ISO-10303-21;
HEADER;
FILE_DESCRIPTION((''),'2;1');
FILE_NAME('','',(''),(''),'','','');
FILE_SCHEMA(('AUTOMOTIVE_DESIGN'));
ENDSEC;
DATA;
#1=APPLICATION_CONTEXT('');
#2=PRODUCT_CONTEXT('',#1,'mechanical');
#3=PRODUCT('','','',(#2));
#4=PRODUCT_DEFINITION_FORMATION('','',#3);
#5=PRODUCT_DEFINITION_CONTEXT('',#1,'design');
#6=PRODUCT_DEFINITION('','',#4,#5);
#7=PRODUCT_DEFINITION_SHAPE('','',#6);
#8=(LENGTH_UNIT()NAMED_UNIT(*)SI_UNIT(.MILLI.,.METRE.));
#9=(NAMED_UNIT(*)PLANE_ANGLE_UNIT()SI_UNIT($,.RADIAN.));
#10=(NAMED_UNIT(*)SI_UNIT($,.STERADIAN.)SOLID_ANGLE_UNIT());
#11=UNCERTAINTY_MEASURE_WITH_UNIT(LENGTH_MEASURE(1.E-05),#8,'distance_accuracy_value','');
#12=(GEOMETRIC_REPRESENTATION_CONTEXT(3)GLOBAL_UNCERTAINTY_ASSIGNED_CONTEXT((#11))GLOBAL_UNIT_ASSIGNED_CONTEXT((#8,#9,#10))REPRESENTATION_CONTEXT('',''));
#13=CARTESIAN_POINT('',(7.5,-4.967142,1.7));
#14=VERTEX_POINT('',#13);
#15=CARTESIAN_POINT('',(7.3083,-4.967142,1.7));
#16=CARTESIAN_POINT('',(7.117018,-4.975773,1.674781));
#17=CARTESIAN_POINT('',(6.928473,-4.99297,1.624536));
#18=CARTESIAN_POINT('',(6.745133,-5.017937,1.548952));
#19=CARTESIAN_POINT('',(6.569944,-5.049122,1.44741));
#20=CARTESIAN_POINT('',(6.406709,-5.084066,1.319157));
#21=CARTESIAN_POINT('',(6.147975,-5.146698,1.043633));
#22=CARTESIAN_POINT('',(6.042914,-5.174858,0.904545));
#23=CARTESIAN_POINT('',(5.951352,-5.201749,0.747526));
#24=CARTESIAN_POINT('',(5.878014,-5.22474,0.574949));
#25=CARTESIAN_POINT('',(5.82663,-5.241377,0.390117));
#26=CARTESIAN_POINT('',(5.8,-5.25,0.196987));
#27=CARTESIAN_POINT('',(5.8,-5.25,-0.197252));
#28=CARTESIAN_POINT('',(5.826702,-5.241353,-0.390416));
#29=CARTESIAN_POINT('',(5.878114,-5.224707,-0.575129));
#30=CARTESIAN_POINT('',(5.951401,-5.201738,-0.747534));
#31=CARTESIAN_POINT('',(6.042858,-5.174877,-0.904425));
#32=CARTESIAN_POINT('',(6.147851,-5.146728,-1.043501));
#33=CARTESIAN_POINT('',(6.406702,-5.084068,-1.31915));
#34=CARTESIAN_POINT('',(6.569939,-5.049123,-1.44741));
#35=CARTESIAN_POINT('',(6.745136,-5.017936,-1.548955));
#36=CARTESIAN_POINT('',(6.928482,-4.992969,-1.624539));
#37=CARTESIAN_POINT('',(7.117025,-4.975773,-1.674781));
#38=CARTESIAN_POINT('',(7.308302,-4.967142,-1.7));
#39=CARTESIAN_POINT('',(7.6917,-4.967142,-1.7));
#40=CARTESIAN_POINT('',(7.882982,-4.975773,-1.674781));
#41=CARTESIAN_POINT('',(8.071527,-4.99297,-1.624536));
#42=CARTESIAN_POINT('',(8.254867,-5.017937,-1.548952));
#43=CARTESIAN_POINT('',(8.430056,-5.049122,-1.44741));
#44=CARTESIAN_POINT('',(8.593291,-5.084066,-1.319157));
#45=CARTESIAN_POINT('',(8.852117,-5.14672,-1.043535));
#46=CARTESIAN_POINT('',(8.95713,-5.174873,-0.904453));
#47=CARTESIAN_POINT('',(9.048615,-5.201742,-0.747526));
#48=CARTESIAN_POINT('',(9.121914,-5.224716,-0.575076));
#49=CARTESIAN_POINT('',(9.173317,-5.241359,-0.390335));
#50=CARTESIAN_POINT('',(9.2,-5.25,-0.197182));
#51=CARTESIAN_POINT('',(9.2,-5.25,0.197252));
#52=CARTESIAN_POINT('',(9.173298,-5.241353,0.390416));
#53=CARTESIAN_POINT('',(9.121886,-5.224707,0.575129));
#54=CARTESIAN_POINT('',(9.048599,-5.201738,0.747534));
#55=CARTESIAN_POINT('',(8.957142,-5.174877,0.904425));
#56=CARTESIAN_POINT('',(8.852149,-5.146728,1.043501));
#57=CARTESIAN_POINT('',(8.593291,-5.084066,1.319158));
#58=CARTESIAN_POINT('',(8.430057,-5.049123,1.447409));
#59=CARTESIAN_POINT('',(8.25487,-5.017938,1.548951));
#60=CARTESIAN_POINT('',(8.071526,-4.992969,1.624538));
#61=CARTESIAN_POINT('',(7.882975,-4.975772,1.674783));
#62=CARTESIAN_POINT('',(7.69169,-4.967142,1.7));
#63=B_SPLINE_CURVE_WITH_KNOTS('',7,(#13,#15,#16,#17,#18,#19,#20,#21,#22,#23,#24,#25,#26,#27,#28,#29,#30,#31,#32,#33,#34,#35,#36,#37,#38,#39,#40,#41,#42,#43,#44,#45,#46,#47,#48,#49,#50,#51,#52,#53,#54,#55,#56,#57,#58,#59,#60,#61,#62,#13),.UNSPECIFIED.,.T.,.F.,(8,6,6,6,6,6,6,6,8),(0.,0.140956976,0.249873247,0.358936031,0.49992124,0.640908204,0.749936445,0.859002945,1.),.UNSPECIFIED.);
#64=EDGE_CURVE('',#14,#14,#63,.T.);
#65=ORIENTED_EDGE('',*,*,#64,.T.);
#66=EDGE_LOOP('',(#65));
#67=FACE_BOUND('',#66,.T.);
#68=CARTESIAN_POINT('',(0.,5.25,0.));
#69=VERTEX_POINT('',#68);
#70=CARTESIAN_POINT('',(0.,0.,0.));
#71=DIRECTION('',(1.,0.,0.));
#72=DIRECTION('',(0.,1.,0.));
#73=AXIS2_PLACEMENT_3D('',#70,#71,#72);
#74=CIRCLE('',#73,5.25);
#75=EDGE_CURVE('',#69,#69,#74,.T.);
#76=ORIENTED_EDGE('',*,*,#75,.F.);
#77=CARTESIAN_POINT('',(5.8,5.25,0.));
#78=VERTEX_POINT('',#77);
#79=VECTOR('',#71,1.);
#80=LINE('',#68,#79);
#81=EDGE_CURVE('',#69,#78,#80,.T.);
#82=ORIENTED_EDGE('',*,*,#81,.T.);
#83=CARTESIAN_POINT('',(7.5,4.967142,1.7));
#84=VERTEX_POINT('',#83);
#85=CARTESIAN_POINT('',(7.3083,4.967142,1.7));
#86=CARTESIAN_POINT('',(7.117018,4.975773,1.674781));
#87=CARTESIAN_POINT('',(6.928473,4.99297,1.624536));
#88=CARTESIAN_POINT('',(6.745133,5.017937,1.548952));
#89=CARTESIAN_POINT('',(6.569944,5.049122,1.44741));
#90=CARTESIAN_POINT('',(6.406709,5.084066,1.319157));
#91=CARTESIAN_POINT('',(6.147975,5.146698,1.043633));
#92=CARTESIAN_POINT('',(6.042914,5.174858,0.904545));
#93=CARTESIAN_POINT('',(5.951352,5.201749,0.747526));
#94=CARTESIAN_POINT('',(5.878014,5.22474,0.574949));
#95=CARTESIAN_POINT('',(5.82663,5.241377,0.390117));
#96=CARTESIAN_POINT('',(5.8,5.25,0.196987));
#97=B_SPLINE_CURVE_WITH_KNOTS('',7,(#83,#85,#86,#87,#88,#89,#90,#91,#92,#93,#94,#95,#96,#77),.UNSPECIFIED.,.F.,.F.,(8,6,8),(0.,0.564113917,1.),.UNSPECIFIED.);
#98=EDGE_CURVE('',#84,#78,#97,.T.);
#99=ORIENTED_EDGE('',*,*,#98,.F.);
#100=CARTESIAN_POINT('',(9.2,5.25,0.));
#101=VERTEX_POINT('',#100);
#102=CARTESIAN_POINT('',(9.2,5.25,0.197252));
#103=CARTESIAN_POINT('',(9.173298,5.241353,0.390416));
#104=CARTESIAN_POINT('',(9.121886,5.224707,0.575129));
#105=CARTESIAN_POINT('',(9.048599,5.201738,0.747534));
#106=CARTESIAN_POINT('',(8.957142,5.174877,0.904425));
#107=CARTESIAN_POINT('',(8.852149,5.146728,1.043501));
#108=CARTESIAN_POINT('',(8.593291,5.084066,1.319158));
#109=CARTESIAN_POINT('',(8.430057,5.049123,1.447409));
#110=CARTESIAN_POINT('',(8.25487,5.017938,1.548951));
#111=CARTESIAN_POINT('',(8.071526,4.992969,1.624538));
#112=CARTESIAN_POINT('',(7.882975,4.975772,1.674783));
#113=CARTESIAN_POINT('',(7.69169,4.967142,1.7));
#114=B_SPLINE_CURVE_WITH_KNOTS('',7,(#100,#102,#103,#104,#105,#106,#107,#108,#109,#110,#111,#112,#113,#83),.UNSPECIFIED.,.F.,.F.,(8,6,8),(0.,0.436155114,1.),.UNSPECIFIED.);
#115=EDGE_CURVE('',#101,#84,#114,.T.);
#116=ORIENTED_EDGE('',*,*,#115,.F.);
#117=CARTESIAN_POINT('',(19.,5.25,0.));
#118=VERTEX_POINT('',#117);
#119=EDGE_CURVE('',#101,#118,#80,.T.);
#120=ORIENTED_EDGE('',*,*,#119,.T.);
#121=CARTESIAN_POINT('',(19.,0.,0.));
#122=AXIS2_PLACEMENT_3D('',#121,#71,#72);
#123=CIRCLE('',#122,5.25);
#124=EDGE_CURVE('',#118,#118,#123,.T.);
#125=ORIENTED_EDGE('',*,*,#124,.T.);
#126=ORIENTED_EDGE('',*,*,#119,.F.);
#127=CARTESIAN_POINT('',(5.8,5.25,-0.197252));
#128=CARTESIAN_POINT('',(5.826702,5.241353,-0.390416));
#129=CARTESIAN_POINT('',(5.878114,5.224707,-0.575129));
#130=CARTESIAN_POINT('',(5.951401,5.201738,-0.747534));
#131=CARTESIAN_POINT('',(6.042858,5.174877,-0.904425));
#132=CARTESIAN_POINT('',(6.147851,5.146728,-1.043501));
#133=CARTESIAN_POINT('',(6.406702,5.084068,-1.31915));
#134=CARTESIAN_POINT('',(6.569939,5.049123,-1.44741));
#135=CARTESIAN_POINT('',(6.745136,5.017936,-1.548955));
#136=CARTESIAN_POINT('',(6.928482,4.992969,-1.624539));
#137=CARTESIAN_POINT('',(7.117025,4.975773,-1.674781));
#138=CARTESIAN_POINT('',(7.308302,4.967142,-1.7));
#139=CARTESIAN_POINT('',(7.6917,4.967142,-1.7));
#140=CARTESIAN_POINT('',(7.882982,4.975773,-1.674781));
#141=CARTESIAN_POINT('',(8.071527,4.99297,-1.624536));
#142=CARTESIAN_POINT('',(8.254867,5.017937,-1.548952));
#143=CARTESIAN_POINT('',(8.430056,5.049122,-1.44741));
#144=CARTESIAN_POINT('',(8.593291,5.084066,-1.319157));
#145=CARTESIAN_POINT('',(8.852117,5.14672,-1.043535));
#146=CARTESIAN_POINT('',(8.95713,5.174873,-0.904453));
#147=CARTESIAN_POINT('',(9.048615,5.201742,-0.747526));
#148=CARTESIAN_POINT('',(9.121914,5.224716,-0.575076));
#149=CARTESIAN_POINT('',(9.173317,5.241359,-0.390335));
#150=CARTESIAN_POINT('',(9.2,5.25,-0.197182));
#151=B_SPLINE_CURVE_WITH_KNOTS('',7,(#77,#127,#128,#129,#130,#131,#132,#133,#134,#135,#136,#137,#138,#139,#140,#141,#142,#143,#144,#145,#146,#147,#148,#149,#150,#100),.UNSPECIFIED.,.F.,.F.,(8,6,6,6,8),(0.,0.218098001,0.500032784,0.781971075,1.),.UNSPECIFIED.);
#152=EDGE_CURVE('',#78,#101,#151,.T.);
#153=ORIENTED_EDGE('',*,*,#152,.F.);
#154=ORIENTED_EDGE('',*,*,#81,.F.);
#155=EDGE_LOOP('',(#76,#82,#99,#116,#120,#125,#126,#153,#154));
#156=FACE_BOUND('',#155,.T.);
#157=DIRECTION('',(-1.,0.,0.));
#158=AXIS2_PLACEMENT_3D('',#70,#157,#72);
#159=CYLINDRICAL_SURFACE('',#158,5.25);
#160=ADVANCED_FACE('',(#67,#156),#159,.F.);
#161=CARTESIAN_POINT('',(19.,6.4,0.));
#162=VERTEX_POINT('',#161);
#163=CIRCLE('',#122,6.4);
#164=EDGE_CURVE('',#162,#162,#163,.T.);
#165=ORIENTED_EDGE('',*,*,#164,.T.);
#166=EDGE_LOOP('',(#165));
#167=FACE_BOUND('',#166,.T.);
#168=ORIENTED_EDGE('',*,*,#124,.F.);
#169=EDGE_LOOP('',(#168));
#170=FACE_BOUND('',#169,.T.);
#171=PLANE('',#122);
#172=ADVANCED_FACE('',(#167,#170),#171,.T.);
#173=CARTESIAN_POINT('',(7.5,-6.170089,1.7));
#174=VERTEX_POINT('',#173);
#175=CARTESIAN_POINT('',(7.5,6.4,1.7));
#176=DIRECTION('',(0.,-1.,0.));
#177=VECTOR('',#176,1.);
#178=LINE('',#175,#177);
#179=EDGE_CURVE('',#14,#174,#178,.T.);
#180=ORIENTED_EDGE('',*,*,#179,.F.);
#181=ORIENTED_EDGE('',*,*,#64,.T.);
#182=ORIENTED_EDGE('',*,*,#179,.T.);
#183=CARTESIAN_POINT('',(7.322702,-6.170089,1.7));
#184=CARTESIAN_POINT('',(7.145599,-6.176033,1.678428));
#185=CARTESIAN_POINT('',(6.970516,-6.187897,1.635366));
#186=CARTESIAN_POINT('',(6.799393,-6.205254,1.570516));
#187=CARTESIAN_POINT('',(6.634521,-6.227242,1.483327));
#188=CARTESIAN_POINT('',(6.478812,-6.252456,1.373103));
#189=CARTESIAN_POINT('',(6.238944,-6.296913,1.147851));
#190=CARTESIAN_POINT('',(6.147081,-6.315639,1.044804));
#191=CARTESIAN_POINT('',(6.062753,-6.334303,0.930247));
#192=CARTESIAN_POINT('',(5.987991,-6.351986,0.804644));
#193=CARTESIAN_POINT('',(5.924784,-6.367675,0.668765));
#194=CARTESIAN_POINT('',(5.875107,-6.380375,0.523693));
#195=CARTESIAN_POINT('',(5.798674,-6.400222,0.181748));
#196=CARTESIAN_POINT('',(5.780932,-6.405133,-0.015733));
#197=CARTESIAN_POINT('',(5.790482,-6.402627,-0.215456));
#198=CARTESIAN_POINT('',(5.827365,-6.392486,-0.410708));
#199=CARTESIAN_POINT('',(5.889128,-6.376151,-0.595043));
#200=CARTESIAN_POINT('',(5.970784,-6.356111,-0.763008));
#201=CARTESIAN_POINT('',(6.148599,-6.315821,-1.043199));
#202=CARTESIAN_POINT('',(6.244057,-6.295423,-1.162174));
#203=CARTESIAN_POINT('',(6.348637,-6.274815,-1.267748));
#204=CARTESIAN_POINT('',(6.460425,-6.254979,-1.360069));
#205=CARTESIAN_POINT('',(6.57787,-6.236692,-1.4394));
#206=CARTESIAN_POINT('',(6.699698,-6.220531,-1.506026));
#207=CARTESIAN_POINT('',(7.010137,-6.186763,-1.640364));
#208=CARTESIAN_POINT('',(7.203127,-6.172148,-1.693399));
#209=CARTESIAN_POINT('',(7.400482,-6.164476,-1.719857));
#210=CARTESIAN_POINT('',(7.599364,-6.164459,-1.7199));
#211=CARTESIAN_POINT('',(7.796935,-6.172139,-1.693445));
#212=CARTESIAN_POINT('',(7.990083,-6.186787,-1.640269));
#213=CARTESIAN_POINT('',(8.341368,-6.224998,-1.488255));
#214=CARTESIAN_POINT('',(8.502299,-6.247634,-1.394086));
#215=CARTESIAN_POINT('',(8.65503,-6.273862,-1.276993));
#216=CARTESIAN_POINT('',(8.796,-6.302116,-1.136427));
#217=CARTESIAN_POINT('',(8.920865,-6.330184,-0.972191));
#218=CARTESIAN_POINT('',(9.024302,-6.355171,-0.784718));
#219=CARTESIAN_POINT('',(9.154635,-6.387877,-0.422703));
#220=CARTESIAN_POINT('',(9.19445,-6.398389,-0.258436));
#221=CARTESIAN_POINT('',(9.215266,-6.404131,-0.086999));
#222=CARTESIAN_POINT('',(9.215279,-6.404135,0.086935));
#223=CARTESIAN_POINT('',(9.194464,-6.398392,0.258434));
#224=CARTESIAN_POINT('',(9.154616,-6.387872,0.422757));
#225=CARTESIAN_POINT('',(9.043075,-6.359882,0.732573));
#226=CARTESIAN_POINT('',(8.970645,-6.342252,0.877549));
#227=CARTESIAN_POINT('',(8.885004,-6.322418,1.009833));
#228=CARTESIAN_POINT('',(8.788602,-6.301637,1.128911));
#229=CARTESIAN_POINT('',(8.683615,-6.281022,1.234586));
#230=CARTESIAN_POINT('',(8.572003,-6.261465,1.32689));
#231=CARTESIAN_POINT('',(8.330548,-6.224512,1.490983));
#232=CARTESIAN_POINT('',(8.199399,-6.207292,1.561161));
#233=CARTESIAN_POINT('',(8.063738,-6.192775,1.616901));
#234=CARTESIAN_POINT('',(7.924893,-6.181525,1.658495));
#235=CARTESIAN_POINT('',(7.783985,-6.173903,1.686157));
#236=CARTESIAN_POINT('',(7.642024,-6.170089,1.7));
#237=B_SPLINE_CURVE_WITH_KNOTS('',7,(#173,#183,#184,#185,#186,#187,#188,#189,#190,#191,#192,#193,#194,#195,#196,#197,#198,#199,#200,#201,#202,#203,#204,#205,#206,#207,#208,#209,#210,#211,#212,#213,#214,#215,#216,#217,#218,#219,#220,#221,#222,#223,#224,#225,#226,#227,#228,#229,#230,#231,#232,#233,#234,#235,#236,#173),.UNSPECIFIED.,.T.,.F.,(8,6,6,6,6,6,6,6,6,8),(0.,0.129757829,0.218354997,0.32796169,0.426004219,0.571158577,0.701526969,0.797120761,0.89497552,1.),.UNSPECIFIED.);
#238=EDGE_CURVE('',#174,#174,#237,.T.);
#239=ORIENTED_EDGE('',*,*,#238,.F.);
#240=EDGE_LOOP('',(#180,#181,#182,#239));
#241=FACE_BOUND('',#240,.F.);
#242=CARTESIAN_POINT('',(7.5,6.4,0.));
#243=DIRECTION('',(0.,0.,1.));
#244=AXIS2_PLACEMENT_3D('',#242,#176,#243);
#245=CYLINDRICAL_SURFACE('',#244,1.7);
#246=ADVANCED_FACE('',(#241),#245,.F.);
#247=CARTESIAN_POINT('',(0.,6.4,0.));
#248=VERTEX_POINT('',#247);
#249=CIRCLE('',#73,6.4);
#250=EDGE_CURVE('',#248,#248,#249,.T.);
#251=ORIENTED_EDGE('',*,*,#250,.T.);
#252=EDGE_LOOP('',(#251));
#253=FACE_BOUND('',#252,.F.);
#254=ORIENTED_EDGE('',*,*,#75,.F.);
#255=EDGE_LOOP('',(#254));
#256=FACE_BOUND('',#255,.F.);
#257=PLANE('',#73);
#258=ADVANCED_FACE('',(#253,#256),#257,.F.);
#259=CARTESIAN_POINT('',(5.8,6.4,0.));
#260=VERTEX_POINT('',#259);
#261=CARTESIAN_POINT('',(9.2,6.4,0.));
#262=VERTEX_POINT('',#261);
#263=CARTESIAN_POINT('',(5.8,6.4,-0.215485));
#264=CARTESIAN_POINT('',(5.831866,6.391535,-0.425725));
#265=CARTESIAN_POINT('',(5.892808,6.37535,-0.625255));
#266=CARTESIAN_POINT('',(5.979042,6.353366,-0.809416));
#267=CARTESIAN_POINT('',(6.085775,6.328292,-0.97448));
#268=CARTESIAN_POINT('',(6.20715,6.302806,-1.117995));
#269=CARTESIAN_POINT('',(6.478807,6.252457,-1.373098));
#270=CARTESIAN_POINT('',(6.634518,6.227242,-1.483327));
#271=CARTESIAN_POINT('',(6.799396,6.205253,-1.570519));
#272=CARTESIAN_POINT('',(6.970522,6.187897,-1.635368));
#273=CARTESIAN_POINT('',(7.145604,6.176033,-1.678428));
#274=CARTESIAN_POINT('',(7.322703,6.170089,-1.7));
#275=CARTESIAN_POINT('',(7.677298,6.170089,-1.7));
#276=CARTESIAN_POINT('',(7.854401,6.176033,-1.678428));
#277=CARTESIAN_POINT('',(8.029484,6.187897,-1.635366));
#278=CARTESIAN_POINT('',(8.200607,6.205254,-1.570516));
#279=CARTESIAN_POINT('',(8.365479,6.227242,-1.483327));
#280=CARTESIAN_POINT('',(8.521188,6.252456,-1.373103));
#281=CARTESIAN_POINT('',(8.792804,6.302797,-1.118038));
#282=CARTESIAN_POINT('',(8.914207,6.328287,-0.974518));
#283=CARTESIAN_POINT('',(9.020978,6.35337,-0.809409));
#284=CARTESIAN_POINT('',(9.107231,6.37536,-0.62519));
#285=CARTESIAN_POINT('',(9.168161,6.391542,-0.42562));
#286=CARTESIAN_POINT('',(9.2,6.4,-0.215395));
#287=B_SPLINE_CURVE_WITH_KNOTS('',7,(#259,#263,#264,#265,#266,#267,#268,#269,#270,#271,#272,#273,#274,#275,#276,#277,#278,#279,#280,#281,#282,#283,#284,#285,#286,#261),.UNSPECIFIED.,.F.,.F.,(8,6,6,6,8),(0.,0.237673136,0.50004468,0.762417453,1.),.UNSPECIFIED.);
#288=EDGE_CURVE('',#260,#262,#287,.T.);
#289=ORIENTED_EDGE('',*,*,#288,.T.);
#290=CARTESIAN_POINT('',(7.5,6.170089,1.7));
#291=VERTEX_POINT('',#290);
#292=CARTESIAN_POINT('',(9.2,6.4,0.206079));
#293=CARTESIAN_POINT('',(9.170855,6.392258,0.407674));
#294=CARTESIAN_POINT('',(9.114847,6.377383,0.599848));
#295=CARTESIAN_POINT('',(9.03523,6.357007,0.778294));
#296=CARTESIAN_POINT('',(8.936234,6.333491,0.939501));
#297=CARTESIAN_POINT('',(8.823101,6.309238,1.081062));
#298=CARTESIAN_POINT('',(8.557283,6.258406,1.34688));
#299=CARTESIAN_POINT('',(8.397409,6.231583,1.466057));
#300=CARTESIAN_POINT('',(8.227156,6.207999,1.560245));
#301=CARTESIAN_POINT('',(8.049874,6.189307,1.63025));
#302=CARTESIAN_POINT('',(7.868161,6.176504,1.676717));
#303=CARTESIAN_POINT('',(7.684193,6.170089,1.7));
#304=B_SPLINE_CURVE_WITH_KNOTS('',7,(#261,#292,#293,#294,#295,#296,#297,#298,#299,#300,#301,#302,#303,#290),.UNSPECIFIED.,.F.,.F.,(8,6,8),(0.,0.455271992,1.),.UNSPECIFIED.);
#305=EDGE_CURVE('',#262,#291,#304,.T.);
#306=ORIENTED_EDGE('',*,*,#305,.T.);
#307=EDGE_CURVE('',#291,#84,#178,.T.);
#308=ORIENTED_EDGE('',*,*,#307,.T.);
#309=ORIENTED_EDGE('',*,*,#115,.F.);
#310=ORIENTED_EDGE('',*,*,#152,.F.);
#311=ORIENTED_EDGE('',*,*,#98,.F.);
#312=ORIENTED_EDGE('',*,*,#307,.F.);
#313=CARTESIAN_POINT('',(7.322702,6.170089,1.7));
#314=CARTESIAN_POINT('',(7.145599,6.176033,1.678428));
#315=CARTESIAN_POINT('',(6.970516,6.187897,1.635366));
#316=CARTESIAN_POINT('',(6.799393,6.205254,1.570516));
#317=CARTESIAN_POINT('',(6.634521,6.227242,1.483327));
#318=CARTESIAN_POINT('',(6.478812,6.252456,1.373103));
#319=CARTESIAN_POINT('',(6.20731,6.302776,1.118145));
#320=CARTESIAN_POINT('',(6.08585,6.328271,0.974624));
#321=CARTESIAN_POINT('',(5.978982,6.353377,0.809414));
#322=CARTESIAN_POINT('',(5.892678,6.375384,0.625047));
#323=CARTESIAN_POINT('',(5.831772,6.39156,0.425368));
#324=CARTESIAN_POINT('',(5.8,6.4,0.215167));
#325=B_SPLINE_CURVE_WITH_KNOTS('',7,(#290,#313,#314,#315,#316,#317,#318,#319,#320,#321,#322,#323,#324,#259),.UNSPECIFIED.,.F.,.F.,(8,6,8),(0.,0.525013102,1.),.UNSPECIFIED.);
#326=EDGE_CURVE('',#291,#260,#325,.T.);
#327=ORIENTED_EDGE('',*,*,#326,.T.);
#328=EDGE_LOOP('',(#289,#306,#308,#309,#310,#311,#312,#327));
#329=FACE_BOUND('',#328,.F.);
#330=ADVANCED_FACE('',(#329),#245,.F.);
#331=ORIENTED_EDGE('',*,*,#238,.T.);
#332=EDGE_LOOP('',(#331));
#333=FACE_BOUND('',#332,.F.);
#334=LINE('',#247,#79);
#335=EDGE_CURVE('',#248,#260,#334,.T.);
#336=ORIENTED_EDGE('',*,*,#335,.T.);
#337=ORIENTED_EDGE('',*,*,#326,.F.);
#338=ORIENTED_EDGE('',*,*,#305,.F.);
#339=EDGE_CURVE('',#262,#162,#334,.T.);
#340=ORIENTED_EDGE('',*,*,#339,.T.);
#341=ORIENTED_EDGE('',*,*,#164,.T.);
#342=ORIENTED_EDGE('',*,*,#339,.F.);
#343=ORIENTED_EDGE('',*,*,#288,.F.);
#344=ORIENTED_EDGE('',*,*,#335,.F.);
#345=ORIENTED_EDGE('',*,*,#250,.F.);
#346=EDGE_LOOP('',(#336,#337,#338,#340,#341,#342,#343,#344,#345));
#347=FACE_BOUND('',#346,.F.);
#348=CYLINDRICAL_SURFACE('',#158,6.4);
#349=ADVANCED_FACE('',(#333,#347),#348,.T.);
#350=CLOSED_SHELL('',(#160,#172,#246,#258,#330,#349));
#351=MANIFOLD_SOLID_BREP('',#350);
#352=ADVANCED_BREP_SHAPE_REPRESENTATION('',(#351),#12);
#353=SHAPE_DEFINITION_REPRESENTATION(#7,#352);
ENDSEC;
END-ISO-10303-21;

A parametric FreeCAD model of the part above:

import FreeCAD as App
import Part
import Sketcher

V = App.Vector
Q = App.Units.Quantity

doc = App.newDocument("Part")
params = doc.addObject("Spreadsheet::Sheet", "Params")
for row, (alias, value) in enumerate([
    ("sketch1_diameter", "12.8 mm"),
    ("sketch1_diameter2", "10.5 mm"),
    ("pad1_length", "19 mm"),
    ("sketch2_diameter", "3.4 mm"),
    ("hole_diameter", "3.4 mm"),
], start=1):
    params.set(f"A{row}", alias)
    params.set(f"B{row}", "=" + value)
    params.setAlias(f"B{row}", alias)

body = doc.addObject("PartDesign::Body", "Body")

# Sketch on YZ plane
sketch1 = doc.addObject("Sketcher::SketchObject", "Sketch")
body.addObject(sketch1)
sketch1.AttachmentSupport = (doc.YZ_Plane, [""])
sketch1.MapMode = "FlatFace"
sketch1.addGeometry(Part.Circle(V(0, 0, 0), V(0, 0, 1), 6), False)
sketch1.addGeometry(Part.Circle(V(0, 0, 0), V(0, 0, 1), 5), False)
sketch1.addConstraint(Sketcher.Constraint("Coincident", 0, 3, -1, 1))
sketch1.addConstraint(Sketcher.Constraint("Coincident", 1, 3, -1, 1))
sketch1.addConstraint(Sketcher.Constraint("Diameter", 0, Q("12.8 mm")))
sketch1.addConstraint(Sketcher.Constraint("Diameter", 1, Q("10.5 mm")))
sketch1.setExpression("Constraints[2]", "Params.sketch1_diameter")
sketch1.setExpression("Constraints[3]", "Params.sketch1_diameter2")
pad1 = doc.addObject("PartDesign::Pad", "Pad")
body.addObject(pad1)
pad1.Profile = sketch1
pad1.setExpression("Length", "Params.pad1_length")

# Sketch on XZ plane
sketch2 = doc.addObject("Sketcher::SketchObject", "Sketch001")
body.addObject(sketch2)
sketch2.AttachmentSupport = (doc.XZ_Plane, [""])
sketch2.MapMode = "FlatFace"
sketch2.AttachmentOffset = App.Placement(V(0, 0, -6.4), App.Rotation())
sketch2.addGeometry(Part.Circle(V(7.5, 0, 0), V(0, 0, 1), 1.7), False)
sketch2.addConstraint(Sketcher.Constraint("PointOnObject", 0, 3, -1))
sketch2.addConstraint(Sketcher.Constraint("Diameter", 0, Q("3.4 mm")))
sketch2.addConstraint(Sketcher.Constraint("DistanceX", -1, 1, 0, 3, Q("7.5 mm")))
sketch2.setExpression("Constraints[1]", "Params.sketch2_diameter")
doc.recompute()
hole = doc.addObject("PartDesign::Hole", "Hole")
body.addObject(hole)
hole.Profile = sketch2
hole.ThreadType = "None"
hole.setExpression("Diameter", "Params.hole_diameter")
hole.DepthType = "ThroughAll"
hole.Reversed = True

doc.recompute()
